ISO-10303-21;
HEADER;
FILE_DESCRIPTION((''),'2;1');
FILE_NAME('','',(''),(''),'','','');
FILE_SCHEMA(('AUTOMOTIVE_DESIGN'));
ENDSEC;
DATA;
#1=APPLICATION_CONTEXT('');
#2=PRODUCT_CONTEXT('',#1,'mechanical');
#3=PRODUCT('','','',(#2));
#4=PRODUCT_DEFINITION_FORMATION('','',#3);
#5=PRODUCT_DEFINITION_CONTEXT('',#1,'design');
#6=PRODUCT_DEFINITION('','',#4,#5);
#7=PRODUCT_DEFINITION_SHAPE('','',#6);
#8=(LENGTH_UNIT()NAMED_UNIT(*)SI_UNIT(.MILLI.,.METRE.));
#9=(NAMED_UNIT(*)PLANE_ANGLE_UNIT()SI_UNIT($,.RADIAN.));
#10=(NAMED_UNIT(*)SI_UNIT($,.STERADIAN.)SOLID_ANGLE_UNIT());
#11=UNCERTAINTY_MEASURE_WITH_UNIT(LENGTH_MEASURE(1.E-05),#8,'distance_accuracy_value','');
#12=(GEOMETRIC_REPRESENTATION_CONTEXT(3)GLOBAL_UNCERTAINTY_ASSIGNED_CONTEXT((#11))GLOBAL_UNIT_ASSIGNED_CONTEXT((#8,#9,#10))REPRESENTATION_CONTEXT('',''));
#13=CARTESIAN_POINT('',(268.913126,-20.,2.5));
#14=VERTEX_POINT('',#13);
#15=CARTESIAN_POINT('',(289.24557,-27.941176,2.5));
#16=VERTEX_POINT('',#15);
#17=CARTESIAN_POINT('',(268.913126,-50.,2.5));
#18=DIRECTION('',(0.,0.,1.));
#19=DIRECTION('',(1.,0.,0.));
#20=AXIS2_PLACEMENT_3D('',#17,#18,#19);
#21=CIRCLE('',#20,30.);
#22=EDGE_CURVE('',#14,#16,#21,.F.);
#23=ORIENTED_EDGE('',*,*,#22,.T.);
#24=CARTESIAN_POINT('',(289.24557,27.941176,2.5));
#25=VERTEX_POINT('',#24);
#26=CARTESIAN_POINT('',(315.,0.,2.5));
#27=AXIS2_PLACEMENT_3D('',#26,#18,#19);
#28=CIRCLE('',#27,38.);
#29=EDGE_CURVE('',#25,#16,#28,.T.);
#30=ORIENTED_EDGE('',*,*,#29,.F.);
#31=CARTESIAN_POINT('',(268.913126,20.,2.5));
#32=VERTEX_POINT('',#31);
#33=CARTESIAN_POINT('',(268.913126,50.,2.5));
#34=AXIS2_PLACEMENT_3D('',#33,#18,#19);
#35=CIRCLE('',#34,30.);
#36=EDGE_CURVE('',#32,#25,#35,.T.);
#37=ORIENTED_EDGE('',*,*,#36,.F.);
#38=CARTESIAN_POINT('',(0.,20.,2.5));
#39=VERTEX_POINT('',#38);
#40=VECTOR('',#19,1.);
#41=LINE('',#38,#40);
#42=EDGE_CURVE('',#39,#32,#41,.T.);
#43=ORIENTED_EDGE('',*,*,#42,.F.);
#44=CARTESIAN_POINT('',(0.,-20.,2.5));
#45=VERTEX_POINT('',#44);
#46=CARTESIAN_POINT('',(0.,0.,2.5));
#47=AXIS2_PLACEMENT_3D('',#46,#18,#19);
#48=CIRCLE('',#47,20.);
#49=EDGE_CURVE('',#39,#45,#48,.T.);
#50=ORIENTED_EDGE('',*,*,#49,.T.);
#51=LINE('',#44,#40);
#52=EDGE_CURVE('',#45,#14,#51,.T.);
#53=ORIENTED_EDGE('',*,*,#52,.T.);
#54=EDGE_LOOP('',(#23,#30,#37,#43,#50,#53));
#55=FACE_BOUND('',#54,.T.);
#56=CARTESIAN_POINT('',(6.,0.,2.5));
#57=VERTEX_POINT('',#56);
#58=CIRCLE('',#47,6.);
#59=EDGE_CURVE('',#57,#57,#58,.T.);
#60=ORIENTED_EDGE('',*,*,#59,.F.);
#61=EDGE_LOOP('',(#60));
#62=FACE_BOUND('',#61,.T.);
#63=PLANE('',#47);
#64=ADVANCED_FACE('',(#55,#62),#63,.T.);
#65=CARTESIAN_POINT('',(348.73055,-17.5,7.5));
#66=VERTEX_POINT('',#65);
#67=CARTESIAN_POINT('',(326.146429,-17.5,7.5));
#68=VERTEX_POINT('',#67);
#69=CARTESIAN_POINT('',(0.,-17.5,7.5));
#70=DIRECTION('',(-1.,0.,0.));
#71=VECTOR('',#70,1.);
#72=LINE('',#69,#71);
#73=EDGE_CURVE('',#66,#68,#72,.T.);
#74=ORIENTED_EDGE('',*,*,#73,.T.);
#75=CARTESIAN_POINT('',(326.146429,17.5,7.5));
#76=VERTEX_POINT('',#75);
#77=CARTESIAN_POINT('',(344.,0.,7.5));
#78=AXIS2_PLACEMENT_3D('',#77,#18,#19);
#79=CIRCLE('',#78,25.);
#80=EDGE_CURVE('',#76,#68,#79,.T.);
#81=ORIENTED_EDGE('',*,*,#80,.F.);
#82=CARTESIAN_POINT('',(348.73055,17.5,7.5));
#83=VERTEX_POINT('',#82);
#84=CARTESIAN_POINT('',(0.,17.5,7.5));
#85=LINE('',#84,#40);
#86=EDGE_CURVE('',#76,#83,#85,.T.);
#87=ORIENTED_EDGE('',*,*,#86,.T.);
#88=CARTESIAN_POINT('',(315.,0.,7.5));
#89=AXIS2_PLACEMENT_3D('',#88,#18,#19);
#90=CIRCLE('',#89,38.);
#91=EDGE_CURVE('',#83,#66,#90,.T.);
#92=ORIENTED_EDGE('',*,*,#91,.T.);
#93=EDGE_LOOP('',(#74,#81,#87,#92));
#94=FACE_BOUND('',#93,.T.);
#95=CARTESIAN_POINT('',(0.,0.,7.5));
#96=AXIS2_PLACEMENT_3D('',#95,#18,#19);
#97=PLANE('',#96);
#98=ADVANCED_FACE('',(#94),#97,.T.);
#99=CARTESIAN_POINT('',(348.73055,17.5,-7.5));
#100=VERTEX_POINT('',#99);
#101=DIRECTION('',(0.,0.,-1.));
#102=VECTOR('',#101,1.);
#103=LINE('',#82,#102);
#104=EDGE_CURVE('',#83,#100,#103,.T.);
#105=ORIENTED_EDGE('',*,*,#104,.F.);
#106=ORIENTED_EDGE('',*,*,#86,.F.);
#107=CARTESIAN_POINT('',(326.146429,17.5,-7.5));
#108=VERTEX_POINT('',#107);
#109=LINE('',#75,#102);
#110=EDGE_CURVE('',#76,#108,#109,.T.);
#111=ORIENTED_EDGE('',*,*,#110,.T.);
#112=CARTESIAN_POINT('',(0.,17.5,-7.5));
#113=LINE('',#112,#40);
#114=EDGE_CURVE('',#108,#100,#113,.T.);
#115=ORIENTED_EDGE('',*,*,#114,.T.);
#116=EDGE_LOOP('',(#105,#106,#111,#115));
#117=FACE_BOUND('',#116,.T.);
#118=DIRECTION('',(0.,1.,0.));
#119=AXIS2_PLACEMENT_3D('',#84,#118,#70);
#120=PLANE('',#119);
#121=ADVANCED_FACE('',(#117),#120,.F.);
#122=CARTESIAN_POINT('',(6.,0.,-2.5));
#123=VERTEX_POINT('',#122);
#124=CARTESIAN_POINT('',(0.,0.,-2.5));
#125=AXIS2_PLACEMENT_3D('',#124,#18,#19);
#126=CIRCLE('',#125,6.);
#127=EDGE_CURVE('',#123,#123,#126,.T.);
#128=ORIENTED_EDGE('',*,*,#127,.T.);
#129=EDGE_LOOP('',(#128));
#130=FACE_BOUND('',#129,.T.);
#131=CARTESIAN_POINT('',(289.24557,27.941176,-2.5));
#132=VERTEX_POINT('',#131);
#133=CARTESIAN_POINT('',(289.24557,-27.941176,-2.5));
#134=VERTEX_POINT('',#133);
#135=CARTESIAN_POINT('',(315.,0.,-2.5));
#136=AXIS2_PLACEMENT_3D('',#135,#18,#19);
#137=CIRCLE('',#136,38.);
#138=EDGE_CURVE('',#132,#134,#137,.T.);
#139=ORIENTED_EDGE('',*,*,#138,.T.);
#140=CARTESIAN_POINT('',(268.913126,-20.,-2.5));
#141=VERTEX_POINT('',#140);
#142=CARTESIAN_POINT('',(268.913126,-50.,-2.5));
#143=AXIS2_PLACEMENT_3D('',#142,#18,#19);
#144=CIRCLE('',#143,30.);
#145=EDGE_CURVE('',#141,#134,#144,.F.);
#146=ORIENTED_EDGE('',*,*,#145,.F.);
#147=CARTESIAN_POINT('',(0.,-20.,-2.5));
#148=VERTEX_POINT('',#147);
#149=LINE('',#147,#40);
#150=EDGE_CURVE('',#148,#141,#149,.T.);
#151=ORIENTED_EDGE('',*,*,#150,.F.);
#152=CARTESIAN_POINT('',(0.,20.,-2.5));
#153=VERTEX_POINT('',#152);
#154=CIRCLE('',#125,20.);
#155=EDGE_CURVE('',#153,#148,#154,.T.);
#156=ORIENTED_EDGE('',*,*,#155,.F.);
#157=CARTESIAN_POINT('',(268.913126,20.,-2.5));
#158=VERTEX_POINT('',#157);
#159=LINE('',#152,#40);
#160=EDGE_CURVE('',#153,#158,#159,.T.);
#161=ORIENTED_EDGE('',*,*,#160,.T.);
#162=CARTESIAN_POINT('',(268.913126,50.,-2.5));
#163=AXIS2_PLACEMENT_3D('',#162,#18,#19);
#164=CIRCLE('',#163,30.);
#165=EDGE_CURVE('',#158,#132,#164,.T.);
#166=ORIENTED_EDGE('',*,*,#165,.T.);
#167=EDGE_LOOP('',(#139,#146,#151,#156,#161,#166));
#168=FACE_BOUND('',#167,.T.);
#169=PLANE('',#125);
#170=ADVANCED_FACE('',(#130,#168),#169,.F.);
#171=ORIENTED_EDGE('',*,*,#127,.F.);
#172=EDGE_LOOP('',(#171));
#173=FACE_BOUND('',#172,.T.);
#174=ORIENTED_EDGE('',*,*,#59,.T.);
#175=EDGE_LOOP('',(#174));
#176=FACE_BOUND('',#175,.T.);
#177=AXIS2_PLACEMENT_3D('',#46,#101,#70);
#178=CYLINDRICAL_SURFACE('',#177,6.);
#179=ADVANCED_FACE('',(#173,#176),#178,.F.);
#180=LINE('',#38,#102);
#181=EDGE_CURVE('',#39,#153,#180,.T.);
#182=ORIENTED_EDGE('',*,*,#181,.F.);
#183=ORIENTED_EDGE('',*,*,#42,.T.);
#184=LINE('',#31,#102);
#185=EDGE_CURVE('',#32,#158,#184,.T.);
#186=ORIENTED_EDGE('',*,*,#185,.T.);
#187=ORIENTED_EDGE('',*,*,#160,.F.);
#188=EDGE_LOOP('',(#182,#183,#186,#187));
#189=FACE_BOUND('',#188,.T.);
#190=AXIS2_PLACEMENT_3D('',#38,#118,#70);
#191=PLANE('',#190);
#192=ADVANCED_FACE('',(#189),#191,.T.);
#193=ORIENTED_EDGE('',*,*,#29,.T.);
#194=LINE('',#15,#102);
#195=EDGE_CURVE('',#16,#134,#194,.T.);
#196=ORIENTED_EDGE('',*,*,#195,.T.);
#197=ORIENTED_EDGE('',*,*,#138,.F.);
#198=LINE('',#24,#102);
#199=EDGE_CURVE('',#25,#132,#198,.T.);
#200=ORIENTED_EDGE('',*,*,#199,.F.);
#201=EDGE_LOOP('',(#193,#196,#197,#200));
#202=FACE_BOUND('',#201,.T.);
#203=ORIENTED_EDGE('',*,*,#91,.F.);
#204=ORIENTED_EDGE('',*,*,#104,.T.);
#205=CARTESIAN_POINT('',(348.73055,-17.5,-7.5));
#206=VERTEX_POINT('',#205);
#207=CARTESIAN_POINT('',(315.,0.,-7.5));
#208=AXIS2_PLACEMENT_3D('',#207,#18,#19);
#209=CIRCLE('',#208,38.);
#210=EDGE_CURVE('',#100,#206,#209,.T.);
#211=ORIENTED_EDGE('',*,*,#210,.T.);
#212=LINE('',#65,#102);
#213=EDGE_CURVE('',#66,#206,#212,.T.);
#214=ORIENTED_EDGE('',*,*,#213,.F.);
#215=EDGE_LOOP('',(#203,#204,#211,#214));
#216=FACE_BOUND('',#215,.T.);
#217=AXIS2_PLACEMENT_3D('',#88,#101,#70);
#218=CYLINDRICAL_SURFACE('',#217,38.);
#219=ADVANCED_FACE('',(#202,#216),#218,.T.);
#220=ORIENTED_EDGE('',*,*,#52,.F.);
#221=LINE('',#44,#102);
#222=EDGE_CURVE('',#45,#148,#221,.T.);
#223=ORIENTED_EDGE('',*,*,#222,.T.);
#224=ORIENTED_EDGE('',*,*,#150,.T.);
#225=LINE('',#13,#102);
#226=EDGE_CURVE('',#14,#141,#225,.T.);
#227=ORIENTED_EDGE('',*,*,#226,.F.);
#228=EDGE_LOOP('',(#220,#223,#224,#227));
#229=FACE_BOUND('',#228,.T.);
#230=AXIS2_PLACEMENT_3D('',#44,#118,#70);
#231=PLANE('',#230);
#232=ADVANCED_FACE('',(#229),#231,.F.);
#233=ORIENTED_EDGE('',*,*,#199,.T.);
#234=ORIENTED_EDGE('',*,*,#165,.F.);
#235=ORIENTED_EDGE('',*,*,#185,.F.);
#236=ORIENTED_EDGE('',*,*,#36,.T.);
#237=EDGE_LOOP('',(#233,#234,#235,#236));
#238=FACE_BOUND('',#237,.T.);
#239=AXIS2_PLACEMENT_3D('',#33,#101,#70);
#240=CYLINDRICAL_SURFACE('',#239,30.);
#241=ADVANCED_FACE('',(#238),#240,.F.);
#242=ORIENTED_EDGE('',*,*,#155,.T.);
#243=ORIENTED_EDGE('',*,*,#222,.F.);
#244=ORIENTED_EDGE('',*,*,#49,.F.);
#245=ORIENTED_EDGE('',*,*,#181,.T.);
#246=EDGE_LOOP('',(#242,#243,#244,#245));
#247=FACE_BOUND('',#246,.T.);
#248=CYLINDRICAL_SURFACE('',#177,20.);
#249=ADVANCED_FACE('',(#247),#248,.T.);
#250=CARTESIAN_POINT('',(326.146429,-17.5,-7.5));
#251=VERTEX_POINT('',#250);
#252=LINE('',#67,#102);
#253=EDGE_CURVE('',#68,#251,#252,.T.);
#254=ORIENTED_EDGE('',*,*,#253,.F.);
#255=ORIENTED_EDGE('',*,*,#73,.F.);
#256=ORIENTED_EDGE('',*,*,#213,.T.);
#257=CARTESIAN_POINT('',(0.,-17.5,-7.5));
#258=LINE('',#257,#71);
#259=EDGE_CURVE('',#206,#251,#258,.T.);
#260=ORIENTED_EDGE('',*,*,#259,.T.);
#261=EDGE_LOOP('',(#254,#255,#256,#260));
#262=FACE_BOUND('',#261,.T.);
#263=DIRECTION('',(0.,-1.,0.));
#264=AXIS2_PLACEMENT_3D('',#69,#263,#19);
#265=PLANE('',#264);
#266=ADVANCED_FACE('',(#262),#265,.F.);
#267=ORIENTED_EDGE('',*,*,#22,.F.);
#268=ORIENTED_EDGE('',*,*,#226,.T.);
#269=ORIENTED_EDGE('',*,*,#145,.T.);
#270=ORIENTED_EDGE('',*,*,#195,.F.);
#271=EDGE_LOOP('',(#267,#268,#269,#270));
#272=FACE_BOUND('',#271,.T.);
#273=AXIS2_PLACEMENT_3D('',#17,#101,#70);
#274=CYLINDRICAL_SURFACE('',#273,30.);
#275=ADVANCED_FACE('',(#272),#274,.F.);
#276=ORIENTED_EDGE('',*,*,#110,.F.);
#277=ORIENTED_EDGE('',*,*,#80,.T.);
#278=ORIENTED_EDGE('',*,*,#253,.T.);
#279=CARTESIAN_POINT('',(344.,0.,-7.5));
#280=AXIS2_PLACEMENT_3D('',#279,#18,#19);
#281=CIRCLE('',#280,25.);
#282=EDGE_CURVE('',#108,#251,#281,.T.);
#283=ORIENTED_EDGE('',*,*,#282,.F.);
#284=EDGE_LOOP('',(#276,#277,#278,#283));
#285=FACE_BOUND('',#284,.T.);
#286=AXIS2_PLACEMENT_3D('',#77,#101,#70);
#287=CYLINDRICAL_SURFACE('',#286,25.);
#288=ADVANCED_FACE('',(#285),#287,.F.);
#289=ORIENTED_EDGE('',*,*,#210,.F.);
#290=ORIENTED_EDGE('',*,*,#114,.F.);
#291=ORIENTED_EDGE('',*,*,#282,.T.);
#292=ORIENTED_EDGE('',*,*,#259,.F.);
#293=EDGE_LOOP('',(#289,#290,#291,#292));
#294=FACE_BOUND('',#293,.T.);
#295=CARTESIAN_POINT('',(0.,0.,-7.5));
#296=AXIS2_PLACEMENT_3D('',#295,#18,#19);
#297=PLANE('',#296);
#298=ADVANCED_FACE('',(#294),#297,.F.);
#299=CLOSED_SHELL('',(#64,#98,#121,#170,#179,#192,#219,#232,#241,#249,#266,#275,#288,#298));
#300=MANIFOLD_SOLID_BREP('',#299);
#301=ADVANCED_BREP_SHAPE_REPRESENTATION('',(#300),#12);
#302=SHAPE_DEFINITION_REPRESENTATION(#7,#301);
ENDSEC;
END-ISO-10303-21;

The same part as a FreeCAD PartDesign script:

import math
import FreeCAD as App
import Part
import Sketcher

V = App.Vector
Q = App.Units.Quantity

doc = App.newDocument("Part")
params = doc.addObject("Spreadsheet::Sheet", "Params")
for row, (alias, value) in enumerate([
    ("sketch1_diameter", "12 mm"),
    ("sketch1_radius", "20 mm"),
    ("sketch1_radius2", "30 mm"),
    ("sketch1_radius3", "38 mm"),
    ("pad1_length", "5 mm"),
    ("sketch2_radius", "38 mm"),
    ("sketch2_radius2", "25 mm"),
    ("pad2_length", "15 mm"),
], start=1):
    params.set(f"A{row}", alias)
    params.set(f"B{row}", "=" + value)
    params.setAlias(f"B{row}", alias)

body = doc.addObject("PartDesign::Body", "Body")

# Sketch on XY plane
sketch1 = doc.addObject("Sketcher::SketchObject", "Sketch")
body.addObject(sketch1)
sketch1.AttachmentSupport = (doc.XY_Plane, [""])
sketch1.MapMode = "FlatFace"
sketch1.addGeometry(Part.LineSegment(V(269, 20, 0), V(0, 20, 0)), False)
sketch1.addGeometry(Part.ArcOfCircle(Part.Circle(V(0, 0, 0), V(0, 0, 1), 20), math.radians(90), math.radians(270)), False)
sketch1.addGeometry(Part.LineSegment(V(0, -20, 0), V(269, -20, 0)), False)
sketch1.addGeometry(Part.ArcOfCircle(Part.Circle(V(269, -50, 0), V(0, 0, 1), 30), math.radians(47), math.radians(90)), False)
sketch1.addGeometry(Part.ArcOfCircle(Part.Circle(V(315, 0, 0), V(0, 0, 1), 38), math.radians(133), math.radians(227)), False)
sketch1.addGeometry(Part.ArcOfCircle(Part.Circle(V(269, 50, 0), V(0, 0, 1), 30), math.radians(-90), math.radians(-47)), False)
sketch1.addGeometry(Part.Circle(V(0, 0, 0), V(0, 0, 1), 6), False)
sketch1.addConstraint(Sketcher.Constraint("Tangent", 0, 2, 1, 1))
sketch1.addConstraint(Sketcher.Constraint("Tangent", 1, 2, 2, 1))
sketch1.addConstraint(Sketcher.Constraint("Tangent", 2, 2, 3, 2))
sketch1.addConstraint(Sketcher.Constraint("Tangent", 3, 1, 4, 2))
sketch1.addConstraint(Sketcher.Constraint("Tangent", 4, 1, 5, 2))
sketch1.addConstraint(Sketcher.Constraint("Tangent", 5, 1, 0, 1))
sketch1.addConstraint(Sketcher.Constraint("Horizontal", 0))
sketch1.addConstraint(Sketcher.Constraint("Horizontal", 2))
sketch1.addConstraint(Sketcher.Constraint("Coincident", 1, 3, -1, 1))
sketch1.addConstraint(Sketcher.Constraint("Coincident", 6, 3, -1, 1))
sketch1.addConstraint(Sketcher.Constraint("Equal", 3, 5))
sketch1.addConstraint(Sketcher.Constraint("PointOnObject", 4, 3, -1))
sketch1.addConstraint(Sketcher.Constraint("Diameter", 6, Q("12 mm")))
sketch1.addConstraint(Sketcher.Constraint("Radius", 1, Q("20 mm")))
sketch1.addConstraint(Sketcher.Constraint("Radius", 3, Q("30 mm")))
sketch1.addConstraint(Sketcher.Constraint("Radius", 4, Q("38 mm")))
sketch1.addConstraint(Sketcher.Constraint("DistanceX", -1, 1, 4, 3, Q("315 mm")))
sketch1.setExpression("Constraints[12]", "Params.sketch1_diameter")
sketch1.setExpression("Constraints[13]", "Params.sketch1_radius")
sketch1.setExpression("Constraints[14]", "Params.sketch1_radius2")
sketch1.setExpression("Constraints[15]", "Params.sketch1_radius3")
pad1 = doc.addObject("PartDesign::Pad", "Pad")
body.addObject(pad1)
pad1.Profile = sketch1
pad1.setExpression("Length", "Params.pad1_length")
pad1.Midplane = True

# Sketch on XY plane
sketch2 = doc.addObject("Sketcher::SketchObject", "Sketch001")
body.addObject(sketch2)
sketch2.AttachmentSupport = (doc.XY_Plane, [""])
sketch2.MapMode = "FlatFace"
sketch2.addGeometry(Part.ArcOfCircle(Part.Circle(V(315, 0, 0), V(0, 0, 1), 38), math.radians(133), math.radians(180)), False)
sketch2.addGeometry(Part.ArcOfCircle(Part.Circle(V(315, 0, 0), V(0, 0, 1), 38), math.radians(180), math.radians(227)), False)
sketch2.addGeometry(Part.ArcOfCircle(Part.Circle(V(315, 0, 0), V(0, 0, 1), 38), math.radians(-133), math.radians(-27)), False)
sketch2.addGeometry(Part.LineSegment(V(349, -18, 0), V(326, -18, 0)), False)
sketch2.addGeometry(Part.ArcOfCircle(Part.Circle(V(344, 0, 0), V(0, 0, 1), 25), math.radians(180), math.radians(224)), False)
sketch2.addGeometry(Part.ArcOfCircle(Part.Circle(V(344, 0, 0), V(0, 0, 1), 25), math.radians(136), math.radians(180)), False)
sketch2.addGeometry(Part.LineSegment(V(326, 18, 0), V(349, 18, 0)), False)
sketch2.addGeometry(Part.ArcOfCircle(Part.Circle(V(315, 0, 0), V(0, 0, 1), 38), math.radians(27), math.radians(133)), False)
sketch2.addConstraint(Sketcher.Constraint("Tangent", 0, 2, 1, 1))
sketch2.addConstraint(Sketcher.Constraint("Tangent", 1, 2, 2, 1))
sketch2.addConstraint(Sketcher.Constraint("Coincident", 2, 2, 3, 1))
sketch2.addConstraint(Sketcher.Constraint("Coincident", 3, 2, 4, 2))
sketch2.addConstraint(Sketcher.Constraint("Tangent", 4, 1, 5, 2))
sketch2.addConstraint(Sketcher.Constraint("Coincident", 5, 1, 6, 1))
sketch2.addConstraint(Sketcher.Constraint("Coincident", 6, 2, 7, 1))
sketch2.addConstraint(Sketcher.Constraint("Tangent", 7, 2, 0, 1))
sketch2.addConstraint(Sketcher.Constraint("Horizontal", 3))
sketch2.addConstraint(Sketcher.Constraint("Horizontal", 6))
sketch2.addConstraint(Sketcher.Constraint("Coincident", 2, 3, 0, 3))
sketch2.addConstraint(Sketcher.Constraint("Equal", 4, 5))
sketch2.addConstraint(Sketcher.Constraint("Equal", 2, 7))
sketch2.addConstraint(Sketcher.Constraint("Symmetric", 3, 2, 5, 1, -1))
sketch2.addConstraint(Sketcher.Constraint("Symmetric", 1, 2, 7, 2, -1))
sketch2.addConstraint(Sketcher.Constraint("PointOnObject", 0, 2, -1))
sketch2.addConstraint(Sketcher.Constraint("PointOnObject", 4, 1, -1))
sketch2.addConstraint(Sketcher.Constraint("Radius", 0, Q("38 mm")))
sketch2.addConstraint(Sketcher.Constraint("Radius", 4, Q("25 mm")))
sketch2.addConstraint(Sketcher.Constraint("DistanceX", -1, 1, 0, 3, Q("315 mm")))
sketch2.addConstraint(Sketcher.Constraint("DistanceX", -1, 1, 4, 3, Q("344 mm")))
sketch2.addConstraint(Sketcher.Constraint("DistanceY", 2, 2, 6, 2, Q("35 mm")))
sketch2.addConstraint(Sketcher.Constraint("DistanceX", -1, 1, 1, 2, Q("289.24557 mm")))
sketch2.setExpression("Constraints[17]", "Params.sketch2_radius")
sketch2.setExpression("Constraints[18]", "Params.sketch2_radius2")
pad2 = doc.addObject("PartDesign::Pad", "Pad001")
body.addObject(pad2)
pad2.Profile = sketch2
pad2.setExpression("Length", "Params.pad2_length")
pad2.Midplane = True

doc.recompute()
